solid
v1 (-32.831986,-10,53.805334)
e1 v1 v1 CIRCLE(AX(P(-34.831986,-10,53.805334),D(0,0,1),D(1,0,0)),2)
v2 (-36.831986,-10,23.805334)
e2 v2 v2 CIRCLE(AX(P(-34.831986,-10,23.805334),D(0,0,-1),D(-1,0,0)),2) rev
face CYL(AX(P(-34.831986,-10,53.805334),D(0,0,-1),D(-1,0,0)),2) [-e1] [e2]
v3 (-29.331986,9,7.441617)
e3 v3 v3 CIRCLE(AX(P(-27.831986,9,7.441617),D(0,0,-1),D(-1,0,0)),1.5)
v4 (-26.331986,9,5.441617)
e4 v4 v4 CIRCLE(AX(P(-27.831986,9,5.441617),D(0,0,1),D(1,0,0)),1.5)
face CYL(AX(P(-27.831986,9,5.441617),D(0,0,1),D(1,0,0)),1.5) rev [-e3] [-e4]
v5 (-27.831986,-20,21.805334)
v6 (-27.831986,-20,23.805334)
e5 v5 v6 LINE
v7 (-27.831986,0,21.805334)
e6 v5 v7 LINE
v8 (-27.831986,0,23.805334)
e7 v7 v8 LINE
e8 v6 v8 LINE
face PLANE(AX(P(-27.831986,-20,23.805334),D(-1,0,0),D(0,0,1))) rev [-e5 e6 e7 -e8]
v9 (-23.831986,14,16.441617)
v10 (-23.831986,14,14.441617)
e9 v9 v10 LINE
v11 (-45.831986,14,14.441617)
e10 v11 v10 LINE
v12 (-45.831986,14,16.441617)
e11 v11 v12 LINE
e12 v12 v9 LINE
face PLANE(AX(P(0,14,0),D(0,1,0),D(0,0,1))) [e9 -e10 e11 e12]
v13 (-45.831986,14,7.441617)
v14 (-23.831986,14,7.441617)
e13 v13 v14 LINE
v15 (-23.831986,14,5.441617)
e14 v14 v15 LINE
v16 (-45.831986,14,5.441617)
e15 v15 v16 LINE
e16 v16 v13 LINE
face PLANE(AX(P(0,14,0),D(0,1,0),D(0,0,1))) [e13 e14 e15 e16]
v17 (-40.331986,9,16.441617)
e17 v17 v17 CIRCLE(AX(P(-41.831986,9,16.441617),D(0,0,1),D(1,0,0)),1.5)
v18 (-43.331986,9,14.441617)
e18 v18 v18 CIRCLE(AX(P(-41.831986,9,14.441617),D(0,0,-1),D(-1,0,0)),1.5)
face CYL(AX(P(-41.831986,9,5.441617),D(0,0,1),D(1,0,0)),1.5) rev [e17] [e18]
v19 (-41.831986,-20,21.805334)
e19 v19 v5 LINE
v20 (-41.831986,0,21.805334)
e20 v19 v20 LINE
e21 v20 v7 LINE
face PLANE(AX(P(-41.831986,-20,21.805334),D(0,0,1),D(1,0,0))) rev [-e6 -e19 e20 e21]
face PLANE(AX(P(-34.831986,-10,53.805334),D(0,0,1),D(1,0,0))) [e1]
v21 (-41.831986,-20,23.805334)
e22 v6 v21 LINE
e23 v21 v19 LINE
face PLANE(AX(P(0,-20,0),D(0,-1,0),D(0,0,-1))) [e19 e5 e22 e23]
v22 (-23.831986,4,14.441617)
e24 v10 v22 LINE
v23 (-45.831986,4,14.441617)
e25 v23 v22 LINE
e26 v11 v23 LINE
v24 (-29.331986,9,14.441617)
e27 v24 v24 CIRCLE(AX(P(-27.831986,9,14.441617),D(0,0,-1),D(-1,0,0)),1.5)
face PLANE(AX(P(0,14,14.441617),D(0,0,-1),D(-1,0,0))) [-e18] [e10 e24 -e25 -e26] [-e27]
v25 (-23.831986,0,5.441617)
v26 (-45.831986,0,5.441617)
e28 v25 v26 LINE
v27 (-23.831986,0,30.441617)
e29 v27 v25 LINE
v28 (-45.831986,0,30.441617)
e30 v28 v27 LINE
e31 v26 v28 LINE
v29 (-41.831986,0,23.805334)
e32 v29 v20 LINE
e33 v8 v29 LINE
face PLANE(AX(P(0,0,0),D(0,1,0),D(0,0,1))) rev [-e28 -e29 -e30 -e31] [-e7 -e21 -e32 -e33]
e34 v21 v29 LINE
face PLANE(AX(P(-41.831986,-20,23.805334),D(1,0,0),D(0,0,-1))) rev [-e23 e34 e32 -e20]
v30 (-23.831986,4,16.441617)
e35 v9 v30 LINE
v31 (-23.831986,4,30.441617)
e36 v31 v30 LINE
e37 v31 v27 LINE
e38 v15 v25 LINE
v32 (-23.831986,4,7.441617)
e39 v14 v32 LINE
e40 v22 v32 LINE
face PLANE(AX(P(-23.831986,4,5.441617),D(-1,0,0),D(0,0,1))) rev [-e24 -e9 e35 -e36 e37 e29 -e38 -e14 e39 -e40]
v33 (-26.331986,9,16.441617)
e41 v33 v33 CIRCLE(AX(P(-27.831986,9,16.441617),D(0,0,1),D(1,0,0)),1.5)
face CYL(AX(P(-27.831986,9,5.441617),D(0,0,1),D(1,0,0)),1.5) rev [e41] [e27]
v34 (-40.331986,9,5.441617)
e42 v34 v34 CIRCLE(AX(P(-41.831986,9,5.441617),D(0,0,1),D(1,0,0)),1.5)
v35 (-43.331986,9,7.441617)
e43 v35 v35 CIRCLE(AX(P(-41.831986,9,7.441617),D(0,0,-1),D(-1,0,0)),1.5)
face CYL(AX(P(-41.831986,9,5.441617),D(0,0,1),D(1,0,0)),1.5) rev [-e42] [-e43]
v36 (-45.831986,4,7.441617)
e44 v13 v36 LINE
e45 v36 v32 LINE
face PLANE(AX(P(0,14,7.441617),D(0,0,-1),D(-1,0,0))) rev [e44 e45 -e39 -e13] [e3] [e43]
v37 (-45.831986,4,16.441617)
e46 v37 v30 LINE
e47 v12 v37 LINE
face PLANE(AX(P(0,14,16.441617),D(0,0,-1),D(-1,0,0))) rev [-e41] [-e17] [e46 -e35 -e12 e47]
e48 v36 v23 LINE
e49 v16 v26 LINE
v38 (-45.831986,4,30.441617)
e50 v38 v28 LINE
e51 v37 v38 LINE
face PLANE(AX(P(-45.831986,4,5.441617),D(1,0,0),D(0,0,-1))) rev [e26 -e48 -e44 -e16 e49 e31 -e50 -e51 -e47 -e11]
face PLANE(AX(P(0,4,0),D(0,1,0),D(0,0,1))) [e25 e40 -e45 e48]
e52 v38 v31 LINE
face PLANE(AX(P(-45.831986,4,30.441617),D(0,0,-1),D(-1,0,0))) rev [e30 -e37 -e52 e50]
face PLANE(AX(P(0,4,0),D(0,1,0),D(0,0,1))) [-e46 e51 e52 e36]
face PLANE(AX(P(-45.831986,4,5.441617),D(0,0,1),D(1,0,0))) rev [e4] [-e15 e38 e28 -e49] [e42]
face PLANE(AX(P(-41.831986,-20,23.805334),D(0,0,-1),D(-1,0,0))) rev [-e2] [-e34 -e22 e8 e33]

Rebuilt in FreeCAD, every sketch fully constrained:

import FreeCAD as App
import Part
import Sketcher

V = App.Vector
Q = App.Units.Quantity

doc = App.newDocument("Part")
body = doc.addObject("PartDesign::Body", "Body")

# Sketch on XZ plane
sketch1 = doc.addObject("Sketcher::SketchObject", "Sketch")
body.addObject(sketch1)
sketch1.AttachmentSupport = (doc.XZ_Plane, [""])
sketch1.MapMode = "FlatFace"
sketch1.addGeometry([
    Part.LineSegment(V(-46, 5, 0), V(-46, 30, 0)),
    Part.LineSegment(V(-46, 30, 0), V(-24, 30, 0)),
    Part.LineSegment(V(-24, 30, 0), V(-24, 5, 0)),
    Part.LineSegment(V(-24, 5, 0), V(-46, 5, 0)),
], False)
sketch1.addConstraint([
    Sketcher.Constraint("Coincident", 0, 2, 1, 1),
    Sketcher.Constraint("Coincident", 1, 2, 2, 1),
    Sketcher.Constraint("Coincident", 2, 2, 3, 1),
    Sketcher.Constraint("Coincident", 3, 2, 0, 1),
    Sketcher.Constraint("Vertical", 0),
    Sketcher.Constraint("Horizontal", 1),
    Sketcher.Constraint("Vertical", 2),
    Sketcher.Constraint("Horizontal", 3),
    Sketcher.Constraint("DistanceX", 1, 1, 1, 2, Q("22 mm")),
    Sketcher.Constraint("DistanceY", 0, 1, 0, 2, Q("25 mm")),
    Sketcher.Constraint("DistanceX", 0, 2, -1, 1, Q("45.831986 mm")),
    Sketcher.Constraint("DistanceY", -1, 1, 0, 2, Q("30.441617 mm")),
])
pad1 = doc.addObject("PartDesign::Pad", "Pad")
body.addObject(pad1)
pad1.Profile = sketch1
pad1.Length = 4
pad1.Reversed = True

# Sketch on XZ plane
sketch2 = doc.addObject("Sketcher::SketchObject", "Sketch001")
body.addObject(sketch2)
sketch2.AttachmentSupport = (doc.XZ_Plane, [""])
sketch2.MapMode = "FlatFace"
sketch2.AttachmentOffset = App.Placement(V(0, 0, -4), App.Rotation())
sketch2.addGeometry([
    Part.LineSegment(V(-45.8, 5.4, 0), V(-45.8, 7.4, 0)),  # 0
    Part.LineSegment(V(-45.8, 7.4, 0), V(-23.8, 7.4, 0)),  # 1
    Part.LineSegment(V(-23.8, 7.4, 0), V(-23.8, 5.4, 0)),  # 2
    Part.LineSegment(V(-23.8, 5.4, 0), V(-45.8, 5.4, 0)),  # 3
    Part.LineSegment(V(-45.8, 14.4, 0), V(-45.8, 16.4, 0)),  # 4
    Part.LineSegment(V(-45.8, 16.4, 0), V(-23.8, 16.4, 0)),  # 5
    Part.LineSegment(V(-23.8, 16.4, 0), V(-23.8, 14.4, 0)),  # 6
    Part.LineSegment(V(-23.8, 14.4, 0), V(-45.8, 14.4, 0)),  # 7
], False)
sketch2.addConstraint([
    Sketcher.Constraint("Coincident", 0, 2, 1, 1),
    Sketcher.Constraint("Coincident", 1, 2, 2, 1),
    Sketcher.Constraint("Coincident", 2, 2, 3, 1),
    Sketcher.Constraint("Coincident", 3, 2, 0, 1),
    Sketcher.Constraint("Coincident", 4, 2, 5, 1),
    Sketcher.Constraint("Coincident", 5, 2, 6, 1),
    Sketcher.Constraint("Coincident", 6, 2, 7, 1),
    Sketcher.Constraint("Coincident", 7, 2, 4, 1),
    Sketcher.Constraint("Vertical", 0),
    Sketcher.Constraint("Horizontal", 1),
    Sketcher.Constraint("Vertical", 2),
    Sketcher.Constraint("Horizontal", 3),
    Sketcher.Constraint("Vertical", 4),
    Sketcher.Constraint("Horizontal", 5),
    Sketcher.Constraint("Vertical", 6),
    Sketcher.Constraint("Horizontal", 7),
    Sketcher.Constraint("Vertical", 3, 2, 4, 2),
    Sketcher.Constraint("Vertical", 2, 2, 5, 2),
    Sketcher.Constraint("Equal", 2, 4),
    Sketcher.Constraint("DistanceX", 1, 1, 1, 2, Q("22 mm")),
    Sketcher.Constraint("DistanceY", 0, 1, 0, 2, Q("2 mm")),
    Sketcher.Constraint("DistanceY", 0, 2, 4, 2, Q("9 mm")),
    Sketcher.Constraint("DistanceX", 0, 2, -1, 1, Q("45.831986 mm")),
    Sketcher.Constraint("DistanceY", -1, 1, 0, 2, Q("7.441617 mm")),
])
pad2 = doc.addObject("PartDesign::Pad", "Pad001")
body.addObject(pad2)
pad2.Profile = sketch2
pad2.Length = 10
pad2.Reversed = True

# Sketch on XY plane
sketch3 = doc.addObject("Sketcher::SketchObject", "Sketch002")
body.addObject(sketch3)
sketch3.AttachmentSupport = (doc.XY_Plane, [""])
sketch3.MapMode = "FlatFace"
sketch3.AttachmentOffset = App.Placement(V(0, 0, 16.441617), App.Rotation())
sketch3.addGeometry([
    Part.Circle(V(-41.8, 9, 0), V(0, 0, 1), 1.5),
    Part.Circle(V(-27.8, 9, 0), V(0, 0, 1), 1.5),
], False)
sketch3.addConstraint([
    Sketcher.Constraint("Equal", 0, 1),
    Sketcher.Constraint("Horizontal", 0, 3, 1, 3),
    Sketcher.Constraint("Diameter", 0, Q("3 mm")),
    Sketcher.Constraint("DistanceY", -1, 1, 0, 3, Q("9 mm")),
    Sketcher.Constraint("DistanceX", 0, 3, 1, 3, Q("14 mm")),
    Sketcher.Constraint("DistanceX", 0, 3, -1, 1, Q("41.831986 mm")),
])
pocket1 = doc.addObject("PartDesign::Pocket", "Pocket")
body.addObject(pocket1)
pocket1.Profile = sketch3
pocket1.Length = 11

# Sketch on XZ plane
sketch4 = doc.addObject("Sketcher::SketchObject", "Sketch003")
body.addObject(sketch4)
sketch4.AttachmentSupport = (doc.XZ_Plane, [""])
sketch4.MapMode = "FlatFace"
sketch4.addGeometry([
    Part.LineSegment(V(-41.8, 23.8, 0), V(-41.8, 21.8, 0)),
    Part.LineSegment(V(-41.8, 21.8, 0), V(-27.8, 21.8, 0)),
    Part.LineSegment(V(-27.8, 21.8, 0), V(-27.8, 23.8, 0)),
    Part.LineSegment(V(-27.8, 23.8, 0), V(-41.8, 23.8, 0)),
], False)
sketch4.addConstraint([
    Sketcher.Constraint("Coincident", 0, 2, 1, 1),
    Sketcher.Constraint("Coincident", 1, 2, 2, 1),
    Sketcher.Constraint("Coincident", 2, 2, 3, 1),
    Sketcher.Constraint("Coincident", 3, 2, 0, 1),
    Sketcher.Constraint("Vertical", 0),
    Sketcher.Constraint("Horizontal", 1),
    Sketcher.Constraint("Vertical", 2),
    Sketcher.Constraint("Horizontal", 3),
    Sketcher.Constraint("DistanceX", 1, 1, 1, 2, Q("14 mm")),
    Sketcher.Constraint("DistanceY", 0, 2, 0, 1, Q("2 mm")),
    Sketcher.Constraint("DistanceX", 0, 2, -1, 1, Q("41.831986 mm")),
    Sketcher.Constraint("DistanceY", -1, 1, 0, 2, Q("21.805334 mm")),
])
pad3 = doc.addObject("PartDesign::Pad", "Pad002")
body.addObject(pad3)
pad3.Profile = sketch4
pad3.Length = 20

# Sketch on XY plane
sketch5 = doc.addObject("Sketcher::SketchObject", "Sketch004")
body.addObject(sketch5)
sketch5.AttachmentSupport = (doc.XY_Plane, [""])
sketch5.MapMode = "FlatFace"
sketch5.AttachmentOffset = App.Placement(V(0, 0, 23.805334), App.Rotation())
sketch5.addGeometry(Part.Circle(V(-34.8, -10, 0), V(0, 0, 1), 2), False)
sketch5.addConstraint([
    Sketcher.Constraint("Diameter", 0, Q("4 mm")),
    Sketcher.Constraint("DistanceY", 0, 3, -1, 1, Q("10 mm")),
    Sketcher.Constraint("DistanceX", 0, 3, -1, 1, Q("34.831986 mm")),
])
pad4 = doc.addObject("PartDesign::Pad", "Pad003")
body.addObject(pad4)
pad4.Profile = sketch5
pad4.Length = 30

doc.recompute()
